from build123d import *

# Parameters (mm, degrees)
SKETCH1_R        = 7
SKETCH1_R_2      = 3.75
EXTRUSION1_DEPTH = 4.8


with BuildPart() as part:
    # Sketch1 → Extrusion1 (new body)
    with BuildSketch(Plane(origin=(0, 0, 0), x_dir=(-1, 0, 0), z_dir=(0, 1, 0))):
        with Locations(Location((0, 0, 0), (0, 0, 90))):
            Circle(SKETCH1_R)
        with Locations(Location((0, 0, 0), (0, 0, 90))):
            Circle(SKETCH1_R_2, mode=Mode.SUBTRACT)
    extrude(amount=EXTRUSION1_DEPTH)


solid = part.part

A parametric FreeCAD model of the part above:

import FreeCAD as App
import Part
import Sketcher
from FreeCAD import Vector
Q = App.Units.Quantity

doc = App.newDocument("Part")
body = doc.addObject("PartDesign::Body", "Body")

sketch1 = body.newObject("Sketcher::SketchObject", "Sketch")
sketch1.AttachmentSupport = (doc.getObject("XZ_Plane"), [""])
sketch1.MapMode = "FlatFace"
sketch1.addGeometry([
    Part.Circle(Vector(0, 0, 0), Vector(0, 0, 1), 7),
    Part.Circle(Vector(0, 0, 0), Vector(0, 0, 1), 3.8),
], False)
sketch1.addConstraint([
    Sketcher.Constraint("Coincident", 0, 3, -1, 1),
    Sketcher.Constraint("Coincident", 1, 3, -1, 1),
    Sketcher.Constraint("Diameter", 0, Q("14 mm")),
    Sketcher.Constraint("Diameter", 1, Q("7.5 mm")),
])
pad1 = body.newObject("PartDesign::Pad", "Pad")
pad1.Profile = sketch1
pad1.Length = 4.8
pad1.Reversed = True

doc.recompute()
